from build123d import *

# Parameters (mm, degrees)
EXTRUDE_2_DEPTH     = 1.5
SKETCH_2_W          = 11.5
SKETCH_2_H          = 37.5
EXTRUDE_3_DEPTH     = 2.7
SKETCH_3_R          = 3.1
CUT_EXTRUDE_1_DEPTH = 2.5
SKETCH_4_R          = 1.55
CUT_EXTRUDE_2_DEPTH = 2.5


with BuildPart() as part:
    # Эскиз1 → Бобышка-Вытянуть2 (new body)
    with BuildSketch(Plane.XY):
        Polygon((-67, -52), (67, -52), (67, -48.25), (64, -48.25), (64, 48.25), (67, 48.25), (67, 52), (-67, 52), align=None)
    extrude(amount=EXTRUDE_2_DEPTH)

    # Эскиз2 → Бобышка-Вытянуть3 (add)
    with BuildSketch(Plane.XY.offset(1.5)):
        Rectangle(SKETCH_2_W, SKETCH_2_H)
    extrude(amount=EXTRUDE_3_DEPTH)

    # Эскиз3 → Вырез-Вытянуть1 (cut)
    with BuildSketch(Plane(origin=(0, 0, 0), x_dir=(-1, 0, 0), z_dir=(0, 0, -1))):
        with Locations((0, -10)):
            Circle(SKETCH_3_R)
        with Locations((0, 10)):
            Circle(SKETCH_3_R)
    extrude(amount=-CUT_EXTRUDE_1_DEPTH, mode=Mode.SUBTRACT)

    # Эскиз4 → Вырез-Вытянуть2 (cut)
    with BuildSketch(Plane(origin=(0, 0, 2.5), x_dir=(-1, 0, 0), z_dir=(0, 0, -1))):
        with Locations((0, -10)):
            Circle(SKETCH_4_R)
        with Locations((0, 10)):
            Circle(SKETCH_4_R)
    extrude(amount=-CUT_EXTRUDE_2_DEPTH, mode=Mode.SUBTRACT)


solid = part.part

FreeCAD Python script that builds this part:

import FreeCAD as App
import Part
import Sketcher
from FreeCAD import Vector
Q = App.Units.Quantity


def add_polygon(sketch, points):
    """Adds a closed chain of lines whose ends are joined by coincident constraints."""
    first, n = sketch.GeometryCount, len(points)
    for a, b in zip(points, points[1:] + points[:1]):
        sketch.addGeometry(Part.LineSegment(App.Vector(*a, 0), App.Vector(*b, 0)), False)
    for i in range(n):
        sketch.addConstraint(Sketcher.Constraint("Coincident", first + i, 2, first + (i + 1) % n, 1))

doc = App.newDocument("Part")
body = doc.addObject("PartDesign::Body", "Body")

# Sketch on XY plane
sketch1 = body.newObject("Sketcher::SketchObject", "Sketch")
sketch1.AttachmentSupport = (doc.getObject("XY_Plane"), [""])
sketch1.MapMode = "FlatFace"
add_polygon(sketch1, [(-67, -52), (67, -52), (67, -48.25), (64, -48.25), (64, 48.25), (67, 48.25), (67, 52), (-67, 52)])  # lines 0-7
sketch1.addConstraint([
    Sketcher.Constraint("Horizontal", 0),
    Sketcher.Constraint("Vertical", 1),
    Sketcher.Constraint("Horizontal", 2),
    Sketcher.Constraint("Vertical", 3),
    Sketcher.Constraint("Horizontal", 4),
    Sketcher.Constraint("Vertical", 5),
    Sketcher.Constraint("Horizontal", 6),
    Sketcher.Constraint("Vertical", 7),
    Sketcher.Constraint("Symmetric", 0, 2, 6, 2, -1, 1),
    Sketcher.Constraint("Symmetric", 1, 2, 4, 2, -1),
    Sketcher.Constraint("DistanceX", 0, 1, 0, 2, Q("134 mm")),
    Sketcher.Constraint("DistanceX", 2, 2, 2, 1, Q("3 mm")),
    Sketcher.Constraint("DistanceY", 7, 2, 7, 1, Q("104 mm")),
    Sketcher.Constraint("DistanceY", 3, 1, 3, 2, Q("96.5 mm")),
])
pad1 = body.newObject("PartDesign::Pad", "Pad")
pad1.Profile = sketch1
pad1.Length = 1.5

# Sketch on XY plane
sketch2 = body.newObject("Sketcher::SketchObject", "Sketch001")
sketch2.AttachmentSupport = (doc.getObject("XY_Plane"), [""])
sketch2.MapMode = "FlatFace"
sketch2.AttachmentOffset = App.Placement(Vector(0, 0, 1.5), App.Rotation())
add_polygon(sketch2, [(-5.75, 18.75), (-5.75, -18.75), (5.75, -18.75), (5.75, 18.75)])  # lines 0-3
sketch2.addConstraint([
    Sketcher.Constraint("Vertical", 0),
    Sketcher.Constraint("Horizontal", 1),
    Sketcher.Constraint("Vertical", 2),
    Sketcher.Constraint("Horizontal", 3),
    Sketcher.Constraint("Symmetric", 0, 2, 2, 2, -1, 1),
    Sketcher.Constraint("DistanceX", 1, 1, 1, 2, Q("11.5 mm")),
    Sketcher.Constraint("DistanceY", 0, 2, 0, 1, Q("37.5 mm")),
])
pad2 = body.newObject("PartDesign::Pad", "Pad001")
pad2.Profile = sketch2
pad2.Length = 2.7

# Sketch on XY plane
sketch3 = body.newObject("Sketcher::SketchObject", "Sketch002")
sketch3.AttachmentSupport = (doc.getObject("XY_Plane"), [""])
sketch3.MapMode = "FlatFace"
sketch3.addGeometry([
    Part.Circle(Vector(0, -10, 0), Vector(0, 0, 1), 3.1),
    Part.Circle(Vector(0, 10, 0), Vector(0, 0, 1), 3.1),
], False)
sketch3.addConstraint([
    Sketcher.Constraint("Equal", 0, 1),
    Sketcher.Constraint("Symmetric", 0, 3, 1, 3, -1, 1),
    Sketcher.Constraint("PointOnObject", 0, 3, -2),
    Sketcher.Constraint("Diameter", 0, Q("6.2 mm")),
    Sketcher.Constraint("DistanceY", 0, 3, -1, 1, Q("10 mm")),
])
pocket1 = body.newObject("PartDesign::Pocket", "Pocket")
pocket1.Profile = sketch3
pocket1.Length = 2.5
pocket1.Reversed = True

# Sketch on XY plane
sketch4 = body.newObject("Sketcher::SketchObject", "Sketch003")
sketch4.AttachmentSupport = (doc.getObject("XY_Plane"), [""])
sketch4.MapMode = "FlatFace"
sketch4.AttachmentOffset = App.Placement(Vector(0, 0, 2.5), App.Rotation())
sketch4.addGeometry([
    Part.Circle(Vector(0, -10, 0), Vector(0, 0, 1), 1.55),
    Part.Circle(Vector(0, 10, 0), Vector(0, 0, 1), 1.55),
], False)
sketch4.addConstraint([
    Sketcher.Constraint("Equal", 0, 1),
    Sketcher.Constraint("Symmetric", 0, 3, 1, 3, -1, 1),
    Sketcher.Constraint("PointOnObject", 0, 3, -2),
    Sketcher.Constraint("Diameter", 0, Q("3.1 mm")),
    Sketcher.Constraint("DistanceY", 0, 3, -1, 1, Q("10 mm")),
])
pocket2 = body.newObject("PartDesign::Pocket", "Pocket001")
pocket2.Profile = sketch4
pocket2.Length = 2.5
pocket2.Reversed = True

doc.recompute()
